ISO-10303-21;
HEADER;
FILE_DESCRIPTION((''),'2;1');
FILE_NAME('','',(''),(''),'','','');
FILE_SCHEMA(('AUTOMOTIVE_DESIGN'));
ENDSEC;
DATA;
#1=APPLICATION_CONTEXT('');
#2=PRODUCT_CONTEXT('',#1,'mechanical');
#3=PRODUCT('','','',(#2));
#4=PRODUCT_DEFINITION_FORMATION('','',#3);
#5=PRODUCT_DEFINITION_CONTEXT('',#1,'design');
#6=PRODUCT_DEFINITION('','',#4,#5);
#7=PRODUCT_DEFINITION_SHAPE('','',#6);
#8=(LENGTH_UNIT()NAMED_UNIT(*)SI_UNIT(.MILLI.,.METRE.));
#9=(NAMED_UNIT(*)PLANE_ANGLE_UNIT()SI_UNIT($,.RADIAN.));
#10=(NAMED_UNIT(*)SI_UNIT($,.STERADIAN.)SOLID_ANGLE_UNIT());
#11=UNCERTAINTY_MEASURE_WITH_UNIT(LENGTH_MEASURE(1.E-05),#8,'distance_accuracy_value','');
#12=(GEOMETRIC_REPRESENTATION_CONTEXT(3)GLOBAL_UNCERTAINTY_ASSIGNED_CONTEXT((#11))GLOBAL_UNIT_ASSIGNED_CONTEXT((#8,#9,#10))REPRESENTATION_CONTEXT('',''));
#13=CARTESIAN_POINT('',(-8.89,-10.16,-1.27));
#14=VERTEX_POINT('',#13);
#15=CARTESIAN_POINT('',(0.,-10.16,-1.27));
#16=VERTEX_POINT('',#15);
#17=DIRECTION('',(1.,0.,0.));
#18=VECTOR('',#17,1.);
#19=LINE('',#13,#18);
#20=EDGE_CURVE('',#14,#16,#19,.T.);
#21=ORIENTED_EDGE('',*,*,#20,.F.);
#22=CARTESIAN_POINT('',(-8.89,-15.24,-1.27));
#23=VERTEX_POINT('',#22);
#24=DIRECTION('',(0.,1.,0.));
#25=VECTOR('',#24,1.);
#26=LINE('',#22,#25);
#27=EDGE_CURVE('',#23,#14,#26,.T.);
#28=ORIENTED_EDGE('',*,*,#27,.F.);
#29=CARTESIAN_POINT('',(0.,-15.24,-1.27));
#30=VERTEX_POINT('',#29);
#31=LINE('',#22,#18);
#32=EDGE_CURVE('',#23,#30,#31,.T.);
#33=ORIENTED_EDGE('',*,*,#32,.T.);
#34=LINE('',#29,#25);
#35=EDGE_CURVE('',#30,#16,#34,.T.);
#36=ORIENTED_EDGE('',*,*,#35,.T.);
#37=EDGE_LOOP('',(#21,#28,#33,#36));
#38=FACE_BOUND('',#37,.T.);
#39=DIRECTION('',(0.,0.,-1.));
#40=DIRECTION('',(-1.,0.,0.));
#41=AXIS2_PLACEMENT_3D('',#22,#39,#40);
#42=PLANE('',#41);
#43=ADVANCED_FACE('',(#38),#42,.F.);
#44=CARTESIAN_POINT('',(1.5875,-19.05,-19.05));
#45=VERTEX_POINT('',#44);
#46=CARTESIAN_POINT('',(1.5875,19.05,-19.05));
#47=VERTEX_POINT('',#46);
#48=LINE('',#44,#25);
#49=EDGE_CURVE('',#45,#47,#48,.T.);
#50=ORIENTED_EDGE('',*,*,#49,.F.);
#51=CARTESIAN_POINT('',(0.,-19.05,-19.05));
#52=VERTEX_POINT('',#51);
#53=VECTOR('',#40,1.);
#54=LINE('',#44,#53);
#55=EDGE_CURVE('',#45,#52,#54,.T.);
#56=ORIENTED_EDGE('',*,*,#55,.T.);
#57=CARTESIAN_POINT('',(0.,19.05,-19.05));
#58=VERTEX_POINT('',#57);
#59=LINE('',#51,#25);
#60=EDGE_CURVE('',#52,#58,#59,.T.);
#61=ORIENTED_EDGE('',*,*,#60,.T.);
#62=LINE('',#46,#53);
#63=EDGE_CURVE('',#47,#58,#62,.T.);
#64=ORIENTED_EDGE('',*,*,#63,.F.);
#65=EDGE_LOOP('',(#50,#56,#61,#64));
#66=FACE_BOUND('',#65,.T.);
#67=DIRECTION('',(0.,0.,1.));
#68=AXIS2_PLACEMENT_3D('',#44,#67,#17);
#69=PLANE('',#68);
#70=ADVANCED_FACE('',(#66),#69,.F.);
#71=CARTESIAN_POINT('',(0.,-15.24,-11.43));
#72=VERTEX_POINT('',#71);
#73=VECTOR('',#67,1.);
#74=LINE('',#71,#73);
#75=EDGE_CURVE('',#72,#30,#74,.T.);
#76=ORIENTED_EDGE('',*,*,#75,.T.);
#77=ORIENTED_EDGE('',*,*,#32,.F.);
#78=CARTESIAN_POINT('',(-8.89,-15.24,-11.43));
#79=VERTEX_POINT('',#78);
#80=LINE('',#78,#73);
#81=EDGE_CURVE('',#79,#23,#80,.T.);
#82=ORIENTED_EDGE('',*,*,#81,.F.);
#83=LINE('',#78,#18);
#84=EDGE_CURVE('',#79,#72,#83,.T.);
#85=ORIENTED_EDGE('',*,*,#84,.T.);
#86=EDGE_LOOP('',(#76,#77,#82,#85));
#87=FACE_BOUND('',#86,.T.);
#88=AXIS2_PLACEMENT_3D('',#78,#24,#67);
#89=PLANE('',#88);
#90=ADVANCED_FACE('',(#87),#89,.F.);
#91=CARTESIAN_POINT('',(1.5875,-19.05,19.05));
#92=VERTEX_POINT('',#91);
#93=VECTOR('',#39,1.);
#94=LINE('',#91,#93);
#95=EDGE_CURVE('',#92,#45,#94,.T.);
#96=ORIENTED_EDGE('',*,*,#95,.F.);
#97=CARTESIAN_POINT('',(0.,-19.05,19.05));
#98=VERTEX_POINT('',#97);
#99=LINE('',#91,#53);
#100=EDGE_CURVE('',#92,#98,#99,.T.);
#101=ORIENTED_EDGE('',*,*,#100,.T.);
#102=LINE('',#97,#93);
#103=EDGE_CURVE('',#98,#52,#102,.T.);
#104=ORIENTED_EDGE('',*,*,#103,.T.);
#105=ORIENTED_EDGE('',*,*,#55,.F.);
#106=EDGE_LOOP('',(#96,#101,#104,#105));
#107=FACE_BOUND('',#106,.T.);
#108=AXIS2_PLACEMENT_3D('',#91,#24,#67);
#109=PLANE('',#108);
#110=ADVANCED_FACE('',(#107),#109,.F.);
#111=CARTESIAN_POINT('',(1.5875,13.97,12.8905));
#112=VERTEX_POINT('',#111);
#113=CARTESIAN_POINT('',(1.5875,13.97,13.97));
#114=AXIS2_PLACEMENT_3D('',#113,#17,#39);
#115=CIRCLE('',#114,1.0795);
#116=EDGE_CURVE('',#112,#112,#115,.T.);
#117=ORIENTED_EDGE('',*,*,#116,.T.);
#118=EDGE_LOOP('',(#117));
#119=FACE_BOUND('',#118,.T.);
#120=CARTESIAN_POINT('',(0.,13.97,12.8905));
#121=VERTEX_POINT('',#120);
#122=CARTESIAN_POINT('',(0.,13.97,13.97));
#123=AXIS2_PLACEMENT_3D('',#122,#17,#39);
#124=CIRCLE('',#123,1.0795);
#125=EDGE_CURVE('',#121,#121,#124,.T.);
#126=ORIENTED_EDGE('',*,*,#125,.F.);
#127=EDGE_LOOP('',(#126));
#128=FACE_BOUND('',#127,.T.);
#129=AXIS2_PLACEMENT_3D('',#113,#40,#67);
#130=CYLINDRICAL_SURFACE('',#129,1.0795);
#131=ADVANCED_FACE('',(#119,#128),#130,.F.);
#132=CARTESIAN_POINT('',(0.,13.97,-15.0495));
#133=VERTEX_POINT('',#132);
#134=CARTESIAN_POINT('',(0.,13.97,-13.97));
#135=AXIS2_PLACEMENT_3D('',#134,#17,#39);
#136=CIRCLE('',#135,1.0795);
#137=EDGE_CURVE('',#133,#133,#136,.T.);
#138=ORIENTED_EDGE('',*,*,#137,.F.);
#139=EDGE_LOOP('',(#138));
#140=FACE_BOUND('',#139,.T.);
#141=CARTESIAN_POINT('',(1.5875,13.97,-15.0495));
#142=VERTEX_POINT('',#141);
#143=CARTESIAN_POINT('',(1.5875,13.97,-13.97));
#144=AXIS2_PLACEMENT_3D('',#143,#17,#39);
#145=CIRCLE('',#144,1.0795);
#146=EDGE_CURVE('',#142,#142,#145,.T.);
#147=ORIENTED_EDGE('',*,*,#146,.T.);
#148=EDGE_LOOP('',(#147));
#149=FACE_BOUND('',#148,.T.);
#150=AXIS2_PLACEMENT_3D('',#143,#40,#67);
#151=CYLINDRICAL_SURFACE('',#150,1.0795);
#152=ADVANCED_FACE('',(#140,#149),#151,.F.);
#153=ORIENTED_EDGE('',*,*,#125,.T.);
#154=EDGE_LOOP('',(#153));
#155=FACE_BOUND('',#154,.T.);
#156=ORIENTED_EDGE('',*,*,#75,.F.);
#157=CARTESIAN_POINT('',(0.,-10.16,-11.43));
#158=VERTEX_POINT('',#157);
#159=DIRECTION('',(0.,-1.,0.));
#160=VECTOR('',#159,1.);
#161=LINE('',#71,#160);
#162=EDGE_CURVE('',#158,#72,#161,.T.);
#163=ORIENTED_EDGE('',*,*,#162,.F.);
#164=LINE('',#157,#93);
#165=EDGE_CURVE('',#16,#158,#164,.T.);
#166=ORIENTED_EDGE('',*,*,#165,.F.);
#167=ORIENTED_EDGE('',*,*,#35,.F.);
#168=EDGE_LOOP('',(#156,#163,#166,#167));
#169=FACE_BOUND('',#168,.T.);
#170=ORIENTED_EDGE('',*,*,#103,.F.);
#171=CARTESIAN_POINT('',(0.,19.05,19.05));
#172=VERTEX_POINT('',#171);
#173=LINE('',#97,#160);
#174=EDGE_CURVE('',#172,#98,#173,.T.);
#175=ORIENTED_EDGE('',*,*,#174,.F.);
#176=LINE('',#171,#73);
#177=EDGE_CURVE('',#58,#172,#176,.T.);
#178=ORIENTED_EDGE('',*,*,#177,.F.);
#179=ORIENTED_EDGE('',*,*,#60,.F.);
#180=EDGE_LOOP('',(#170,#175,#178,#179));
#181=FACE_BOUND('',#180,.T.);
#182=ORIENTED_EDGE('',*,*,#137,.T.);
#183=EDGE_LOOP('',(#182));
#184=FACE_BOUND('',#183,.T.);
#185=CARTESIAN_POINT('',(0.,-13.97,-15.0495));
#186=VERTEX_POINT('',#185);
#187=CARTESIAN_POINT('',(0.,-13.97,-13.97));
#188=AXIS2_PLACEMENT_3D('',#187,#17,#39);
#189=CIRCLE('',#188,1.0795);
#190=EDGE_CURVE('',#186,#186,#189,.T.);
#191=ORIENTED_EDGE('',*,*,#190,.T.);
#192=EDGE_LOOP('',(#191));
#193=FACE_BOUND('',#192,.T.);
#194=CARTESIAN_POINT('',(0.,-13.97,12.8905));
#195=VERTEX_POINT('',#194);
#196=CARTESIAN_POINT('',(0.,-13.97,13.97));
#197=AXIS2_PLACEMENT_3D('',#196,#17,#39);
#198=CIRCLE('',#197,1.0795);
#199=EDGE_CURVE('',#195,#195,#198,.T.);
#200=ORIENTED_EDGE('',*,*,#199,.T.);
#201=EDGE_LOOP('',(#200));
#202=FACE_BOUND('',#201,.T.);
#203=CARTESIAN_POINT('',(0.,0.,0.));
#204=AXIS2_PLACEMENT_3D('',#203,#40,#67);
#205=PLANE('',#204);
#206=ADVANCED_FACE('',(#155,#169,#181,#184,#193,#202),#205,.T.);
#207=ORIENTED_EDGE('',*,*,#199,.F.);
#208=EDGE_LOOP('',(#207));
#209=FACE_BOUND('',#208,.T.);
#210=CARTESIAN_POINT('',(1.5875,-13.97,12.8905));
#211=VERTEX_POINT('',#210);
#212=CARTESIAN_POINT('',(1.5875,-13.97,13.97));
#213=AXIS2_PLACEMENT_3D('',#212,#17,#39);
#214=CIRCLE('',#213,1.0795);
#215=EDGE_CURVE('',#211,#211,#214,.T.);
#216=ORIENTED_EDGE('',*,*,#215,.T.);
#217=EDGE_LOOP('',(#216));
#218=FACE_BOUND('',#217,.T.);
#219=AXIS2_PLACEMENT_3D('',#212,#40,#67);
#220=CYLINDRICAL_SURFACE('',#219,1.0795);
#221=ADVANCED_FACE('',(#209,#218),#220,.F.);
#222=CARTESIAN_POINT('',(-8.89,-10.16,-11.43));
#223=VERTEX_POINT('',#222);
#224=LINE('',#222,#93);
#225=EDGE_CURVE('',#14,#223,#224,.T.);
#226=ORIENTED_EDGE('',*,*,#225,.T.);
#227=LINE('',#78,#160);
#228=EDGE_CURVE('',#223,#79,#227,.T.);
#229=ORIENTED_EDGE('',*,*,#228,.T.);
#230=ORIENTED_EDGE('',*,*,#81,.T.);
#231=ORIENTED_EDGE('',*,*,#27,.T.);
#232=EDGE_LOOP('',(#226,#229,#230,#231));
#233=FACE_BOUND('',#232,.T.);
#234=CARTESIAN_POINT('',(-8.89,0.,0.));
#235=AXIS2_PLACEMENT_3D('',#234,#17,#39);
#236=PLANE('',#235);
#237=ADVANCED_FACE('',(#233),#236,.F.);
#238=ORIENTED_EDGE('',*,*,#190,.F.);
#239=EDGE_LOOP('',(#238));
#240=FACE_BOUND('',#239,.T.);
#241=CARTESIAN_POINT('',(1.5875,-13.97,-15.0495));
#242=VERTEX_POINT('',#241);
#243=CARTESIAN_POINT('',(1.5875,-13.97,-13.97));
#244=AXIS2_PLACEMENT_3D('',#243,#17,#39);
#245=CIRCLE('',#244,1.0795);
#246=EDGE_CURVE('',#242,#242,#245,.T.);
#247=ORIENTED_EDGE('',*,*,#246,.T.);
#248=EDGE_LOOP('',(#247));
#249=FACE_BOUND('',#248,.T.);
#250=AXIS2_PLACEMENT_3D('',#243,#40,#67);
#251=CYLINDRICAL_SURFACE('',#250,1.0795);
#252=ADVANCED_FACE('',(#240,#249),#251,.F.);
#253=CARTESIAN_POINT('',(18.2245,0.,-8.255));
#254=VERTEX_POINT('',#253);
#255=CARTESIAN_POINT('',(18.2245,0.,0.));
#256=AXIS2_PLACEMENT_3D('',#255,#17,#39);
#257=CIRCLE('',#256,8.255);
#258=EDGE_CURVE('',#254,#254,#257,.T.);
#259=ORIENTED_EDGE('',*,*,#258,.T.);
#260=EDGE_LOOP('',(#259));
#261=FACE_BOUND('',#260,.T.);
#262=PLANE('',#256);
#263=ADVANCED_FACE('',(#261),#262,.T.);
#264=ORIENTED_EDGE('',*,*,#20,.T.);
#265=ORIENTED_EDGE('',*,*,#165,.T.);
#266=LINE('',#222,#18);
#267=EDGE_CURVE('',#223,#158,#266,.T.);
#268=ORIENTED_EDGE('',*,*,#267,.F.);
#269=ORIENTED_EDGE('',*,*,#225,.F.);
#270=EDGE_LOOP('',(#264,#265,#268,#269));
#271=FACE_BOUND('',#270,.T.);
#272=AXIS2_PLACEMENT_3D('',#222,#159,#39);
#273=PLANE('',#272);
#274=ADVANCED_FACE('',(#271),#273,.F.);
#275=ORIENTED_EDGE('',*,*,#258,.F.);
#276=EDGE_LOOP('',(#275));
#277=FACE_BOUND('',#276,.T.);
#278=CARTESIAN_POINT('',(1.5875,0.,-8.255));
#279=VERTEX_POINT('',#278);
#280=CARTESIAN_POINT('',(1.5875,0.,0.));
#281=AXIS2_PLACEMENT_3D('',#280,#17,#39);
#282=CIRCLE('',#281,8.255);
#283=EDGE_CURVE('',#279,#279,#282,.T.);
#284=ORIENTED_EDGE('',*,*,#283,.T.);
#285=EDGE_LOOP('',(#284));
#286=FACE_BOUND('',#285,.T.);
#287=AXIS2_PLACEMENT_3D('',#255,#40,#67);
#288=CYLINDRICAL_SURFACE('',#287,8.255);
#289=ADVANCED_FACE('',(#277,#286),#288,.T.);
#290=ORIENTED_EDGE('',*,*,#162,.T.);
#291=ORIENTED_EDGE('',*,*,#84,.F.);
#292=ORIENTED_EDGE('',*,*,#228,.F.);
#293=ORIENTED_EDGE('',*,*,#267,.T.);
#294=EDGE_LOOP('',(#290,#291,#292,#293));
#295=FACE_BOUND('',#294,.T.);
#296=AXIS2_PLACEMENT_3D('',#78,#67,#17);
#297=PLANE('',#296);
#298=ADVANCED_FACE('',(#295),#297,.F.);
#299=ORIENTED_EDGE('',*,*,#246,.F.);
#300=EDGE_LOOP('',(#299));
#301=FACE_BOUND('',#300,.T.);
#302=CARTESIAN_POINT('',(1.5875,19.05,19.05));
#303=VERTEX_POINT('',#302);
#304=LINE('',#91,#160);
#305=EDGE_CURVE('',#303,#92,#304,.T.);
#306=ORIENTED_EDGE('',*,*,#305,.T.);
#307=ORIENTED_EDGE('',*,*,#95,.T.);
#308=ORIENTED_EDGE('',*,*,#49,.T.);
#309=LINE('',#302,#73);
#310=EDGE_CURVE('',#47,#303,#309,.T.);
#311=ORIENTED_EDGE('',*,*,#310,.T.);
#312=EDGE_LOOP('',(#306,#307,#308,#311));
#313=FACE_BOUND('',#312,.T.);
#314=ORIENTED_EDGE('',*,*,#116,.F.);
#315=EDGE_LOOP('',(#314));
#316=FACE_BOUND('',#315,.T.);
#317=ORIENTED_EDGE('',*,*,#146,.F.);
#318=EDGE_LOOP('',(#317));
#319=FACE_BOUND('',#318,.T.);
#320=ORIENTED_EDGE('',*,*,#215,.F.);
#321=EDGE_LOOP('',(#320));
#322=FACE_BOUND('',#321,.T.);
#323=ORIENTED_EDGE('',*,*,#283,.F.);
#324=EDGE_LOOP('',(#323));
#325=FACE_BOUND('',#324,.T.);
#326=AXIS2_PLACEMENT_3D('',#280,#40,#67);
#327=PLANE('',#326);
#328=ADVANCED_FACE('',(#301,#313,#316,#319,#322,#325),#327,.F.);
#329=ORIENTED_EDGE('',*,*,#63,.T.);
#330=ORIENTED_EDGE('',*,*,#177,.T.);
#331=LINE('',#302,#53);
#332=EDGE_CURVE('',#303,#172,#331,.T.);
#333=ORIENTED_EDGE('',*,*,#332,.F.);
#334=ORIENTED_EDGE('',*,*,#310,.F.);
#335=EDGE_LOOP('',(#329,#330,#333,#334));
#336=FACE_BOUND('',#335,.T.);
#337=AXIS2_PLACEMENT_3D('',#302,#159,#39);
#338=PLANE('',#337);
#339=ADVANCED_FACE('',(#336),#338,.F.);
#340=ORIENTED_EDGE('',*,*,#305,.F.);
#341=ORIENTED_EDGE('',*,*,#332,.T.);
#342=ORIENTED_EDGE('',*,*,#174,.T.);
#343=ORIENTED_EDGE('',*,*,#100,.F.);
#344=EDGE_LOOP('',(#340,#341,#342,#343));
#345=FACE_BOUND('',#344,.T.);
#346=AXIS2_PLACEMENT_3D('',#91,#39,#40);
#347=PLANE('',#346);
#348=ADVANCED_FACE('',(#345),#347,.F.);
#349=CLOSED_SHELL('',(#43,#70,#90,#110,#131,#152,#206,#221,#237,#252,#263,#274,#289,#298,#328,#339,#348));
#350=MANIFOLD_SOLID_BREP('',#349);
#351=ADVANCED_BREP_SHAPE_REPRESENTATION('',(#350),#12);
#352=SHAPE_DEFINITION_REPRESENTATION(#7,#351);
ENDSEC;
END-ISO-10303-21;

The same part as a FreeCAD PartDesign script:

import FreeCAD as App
import Part
import Sketcher
Q = App.Units.Quantity

doc = App.newDocument("Part")
body = doc.addObject("PartDesign::Body", "Body")

# Sketch on YZ plane
sketch1 = doc.addObject("Sketcher::SketchObject", "Sketch")
body.addObject(sketch1)
sketch1.AttachmentSupport = (doc.YZ_Plane, [""])
sketch1.MapMode = "FlatFace"
sketch1.addGeometry([
    Part.LineSegment(App.Vector(19.1, 19.1, 0), App.Vector(-19.1, 19.1, 0)),  # 0
    Part.LineSegment(App.Vector(-19.1, 19.1, 0), App.Vector(-19.1, -19.1, 0)),  # 1
    Part.LineSegment(App.Vector(-19.1, -19.1, 0), App.Vector(19.1, -19.1, 0)),  # 2
    Part.LineSegment(App.Vector(19.1, -19.1, 0), App.Vector(19.1, 19.1, 0)),  # 3
    Part.Circle(App.Vector(-14, 14, 0), App.Vector(0, 0, 1), 1.1),  # 4
    Part.Circle(App.Vector(-14, -14, 0), App.Vector(0, 0, 1), 1.1),  # 5
    Part.Circle(App.Vector(14, 14, 0), App.Vector(0, 0, 1), 1.1),  # 6
    Part.Circle(App.Vector(14, -14, 0), App.Vector(0, 0, 1), 1.1),  # 7
], False)
sketch1.addConstraint([
    Sketcher.Constraint("Coincident", 0, 2, 1, 1),
    Sketcher.Constraint("Coincident", 1, 2, 2, 1),
    Sketcher.Constraint("Coincident", 2, 2, 3, 1),
    Sketcher.Constraint("Coincident", 3, 2, 0, 1),
    Sketcher.Constraint("Horizontal", 0),
    Sketcher.Constraint("Vertical", 1),
    Sketcher.Constraint("Horizontal", 2),
    Sketcher.Constraint("Vertical", 3),
    Sketcher.Constraint("Equal", 4, 5),
    Sketcher.Constraint("Equal", 5, 6),
    Sketcher.Constraint("Equal", 6, 7),
    Sketcher.Constraint("Symmetric", 5, 3, 6, 3, -1, 1),
    Sketcher.Constraint("Symmetric", 4, 3, 7, 3, -1, 1),
    Sketcher.Constraint("Symmetric", 0, 2, 2, 2, -1, 1),
    Sketcher.Constraint("Symmetric", 4, 3, 6, 3, -2),
    Sketcher.Constraint("Equal", 2, 1),
    Sketcher.Constraint("Diameter", 4, Q("0.085 in")),
    Sketcher.Constraint("DistanceX", 0, 2, 0, 1, Q("1.5 in")),
    Sketcher.Constraint("DistanceY", 5, 3, 4, 3, Q("1.1 in")),
    Sketcher.Constraint("DistanceX", 4, 3, 6, 3, Q("1.1 in")),
])
pad1 = doc.addObject("PartDesign::Pad", "Pad")
body.addObject(pad1)
pad1.Profile = sketch1
pad1.Length = Q("0.0625 in")

# Sketch on YZ plane
sketch2 = doc.addObject("Sketcher::SketchObject", "Sketch001")
body.addObject(sketch2)
sketch2.AttachmentSupport = (doc.YZ_Plane, [""])
sketch2.MapMode = "FlatFace"
sketch2.addGeometry([
    Part.LineSegment(App.Vector(-10, -11, 0), App.Vector(-15, -11, 0)),
    Part.LineSegment(App.Vector(-15, -11, 0), App.Vector(-15, -1, 0)),
    Part.LineSegment(App.Vector(-15, -1, 0), App.Vector(-10, -1, 0)),
    Part.LineSegment(App.Vector(-10, -1, 0), App.Vector(-10, -11, 0)),
], False)
sketch2.addConstraint([
    Sketcher.Constraint("Coincident", 0, 2, 1, 1),
    Sketcher.Constraint("Coincident", 1, 2, 2, 1),
    Sketcher.Constraint("Coincident", 2, 2, 3, 1),
    Sketcher.Constraint("Coincident", 3, 2, 0, 1),
    Sketcher.Constraint("Horizontal", 0),
    Sketcher.Constraint("Vertical", 1),
    Sketcher.Constraint("Horizontal", 2),
    Sketcher.Constraint("Vertical", 3),
    Sketcher.Constraint("DistanceX", 0, 2, 0, 1, Q("0.2 in")),
    Sketcher.Constraint("DistanceY", 1, 1, 1, 2, Q("0.4 in")),
    Sketcher.Constraint("DistanceX", 0, 2, -1, 1, Q("0.6 in")),
    Sketcher.Constraint("DistanceY", 0, 2, -1, 1, Q("0.45 in")),
])
pad2 = doc.addObject("PartDesign::Pad", "Pad001")
body.addObject(pad2)
pad2.Profile = sketch2
pad2.Length = Q("0.35 in")
pad2.Reversed = True

# Sketch on YZ plane
sketch3 = doc.addObject("Sketcher::SketchObject", "Sketch002")
body.addObject(sketch3)
sketch3.AttachmentSupport = (doc.YZ_Plane, [""])
sketch3.MapMode = "FlatFace"
sketch3.AttachmentOffset = App.Placement(App.Vector(0, 0, 0.0625 * 25.4), App.Rotation())
sketch3.addGeometry(Part.Circle(App.Vector(0, 0, 0), App.Vector(0, 0, 1), 8), False)
sketch3.addConstraint([
    Sketcher.Constraint("Coincident", 0, 3, -1, 1),
    Sketcher.Constraint("Diameter", 0, Q("0.65 in")),
])
pad3 = doc.addObject("PartDesign::Pad", "Pad002")
body.addObject(pad3)
pad3.Profile = sketch3
pad3.Length = Q("0.655 in")

doc.recompute()
